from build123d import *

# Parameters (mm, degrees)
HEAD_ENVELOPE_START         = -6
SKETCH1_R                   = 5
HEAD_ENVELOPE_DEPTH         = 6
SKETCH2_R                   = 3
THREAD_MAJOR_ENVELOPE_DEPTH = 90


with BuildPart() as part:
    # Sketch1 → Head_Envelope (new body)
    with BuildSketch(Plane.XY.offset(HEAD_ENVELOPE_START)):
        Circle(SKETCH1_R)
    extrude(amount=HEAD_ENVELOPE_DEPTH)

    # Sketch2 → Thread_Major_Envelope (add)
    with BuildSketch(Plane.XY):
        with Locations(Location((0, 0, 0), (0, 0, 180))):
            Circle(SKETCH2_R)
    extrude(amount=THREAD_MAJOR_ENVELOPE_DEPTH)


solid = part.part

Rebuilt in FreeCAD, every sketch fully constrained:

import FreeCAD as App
import Part
import Sketcher
Q = App.Units.Quantity

doc = App.newDocument("Part")
body = doc.addObject("PartDesign::Body", "Body")

# Sketch on XY plane
sketch1 = doc.addObject("Sketcher::SketchObject", "Sketch")
body.addObject(sketch1)
sketch1.AttachmentSupport = (doc.XY_Plane, [""])
sketch1.MapMode = "FlatFace"
sketch1.AttachmentOffset = App.Placement(App.Vector(0, 0, -6), App.Rotation())
sketch1.addGeometry(Part.Circle(App.Vector(0, 0, 0), App.Vector(0, 0, 1), 5), False)
sketch1.addConstraint([
    Sketcher.Constraint("Coincident", 0, 3, -1, 1),
    Sketcher.Constraint("Diameter", 0, Q("10 mm")),
])
pad1 = doc.addObject("PartDesign::Pad", "Pad")
body.addObject(pad1)
pad1.Profile = sketch1
pad1.Length = 6

# Sketch on XY plane
sketch2 = doc.addObject("Sketcher::SketchObject", "Sketch001")
body.addObject(sketch2)
sketch2.AttachmentSupport = (doc.XY_Plane, [""])
sketch2.MapMode = "FlatFace"
sketch2.addGeometry(Part.Circle(App.Vector(0, 0, 0), App.Vector(0, 0, 1), 3), False)
sketch2.addConstraint([
    Sketcher.Constraint("Coincident", 0, 3, -1, 1),
    Sketcher.Constraint("Diameter", 0, Q("6 mm")),
])
pad2 = doc.addObject("PartDesign::Pad", "Pad001")
body.addObject(pad2)
pad2.Profile = sketch2
pad2.Length = 90

doc.recompute()
